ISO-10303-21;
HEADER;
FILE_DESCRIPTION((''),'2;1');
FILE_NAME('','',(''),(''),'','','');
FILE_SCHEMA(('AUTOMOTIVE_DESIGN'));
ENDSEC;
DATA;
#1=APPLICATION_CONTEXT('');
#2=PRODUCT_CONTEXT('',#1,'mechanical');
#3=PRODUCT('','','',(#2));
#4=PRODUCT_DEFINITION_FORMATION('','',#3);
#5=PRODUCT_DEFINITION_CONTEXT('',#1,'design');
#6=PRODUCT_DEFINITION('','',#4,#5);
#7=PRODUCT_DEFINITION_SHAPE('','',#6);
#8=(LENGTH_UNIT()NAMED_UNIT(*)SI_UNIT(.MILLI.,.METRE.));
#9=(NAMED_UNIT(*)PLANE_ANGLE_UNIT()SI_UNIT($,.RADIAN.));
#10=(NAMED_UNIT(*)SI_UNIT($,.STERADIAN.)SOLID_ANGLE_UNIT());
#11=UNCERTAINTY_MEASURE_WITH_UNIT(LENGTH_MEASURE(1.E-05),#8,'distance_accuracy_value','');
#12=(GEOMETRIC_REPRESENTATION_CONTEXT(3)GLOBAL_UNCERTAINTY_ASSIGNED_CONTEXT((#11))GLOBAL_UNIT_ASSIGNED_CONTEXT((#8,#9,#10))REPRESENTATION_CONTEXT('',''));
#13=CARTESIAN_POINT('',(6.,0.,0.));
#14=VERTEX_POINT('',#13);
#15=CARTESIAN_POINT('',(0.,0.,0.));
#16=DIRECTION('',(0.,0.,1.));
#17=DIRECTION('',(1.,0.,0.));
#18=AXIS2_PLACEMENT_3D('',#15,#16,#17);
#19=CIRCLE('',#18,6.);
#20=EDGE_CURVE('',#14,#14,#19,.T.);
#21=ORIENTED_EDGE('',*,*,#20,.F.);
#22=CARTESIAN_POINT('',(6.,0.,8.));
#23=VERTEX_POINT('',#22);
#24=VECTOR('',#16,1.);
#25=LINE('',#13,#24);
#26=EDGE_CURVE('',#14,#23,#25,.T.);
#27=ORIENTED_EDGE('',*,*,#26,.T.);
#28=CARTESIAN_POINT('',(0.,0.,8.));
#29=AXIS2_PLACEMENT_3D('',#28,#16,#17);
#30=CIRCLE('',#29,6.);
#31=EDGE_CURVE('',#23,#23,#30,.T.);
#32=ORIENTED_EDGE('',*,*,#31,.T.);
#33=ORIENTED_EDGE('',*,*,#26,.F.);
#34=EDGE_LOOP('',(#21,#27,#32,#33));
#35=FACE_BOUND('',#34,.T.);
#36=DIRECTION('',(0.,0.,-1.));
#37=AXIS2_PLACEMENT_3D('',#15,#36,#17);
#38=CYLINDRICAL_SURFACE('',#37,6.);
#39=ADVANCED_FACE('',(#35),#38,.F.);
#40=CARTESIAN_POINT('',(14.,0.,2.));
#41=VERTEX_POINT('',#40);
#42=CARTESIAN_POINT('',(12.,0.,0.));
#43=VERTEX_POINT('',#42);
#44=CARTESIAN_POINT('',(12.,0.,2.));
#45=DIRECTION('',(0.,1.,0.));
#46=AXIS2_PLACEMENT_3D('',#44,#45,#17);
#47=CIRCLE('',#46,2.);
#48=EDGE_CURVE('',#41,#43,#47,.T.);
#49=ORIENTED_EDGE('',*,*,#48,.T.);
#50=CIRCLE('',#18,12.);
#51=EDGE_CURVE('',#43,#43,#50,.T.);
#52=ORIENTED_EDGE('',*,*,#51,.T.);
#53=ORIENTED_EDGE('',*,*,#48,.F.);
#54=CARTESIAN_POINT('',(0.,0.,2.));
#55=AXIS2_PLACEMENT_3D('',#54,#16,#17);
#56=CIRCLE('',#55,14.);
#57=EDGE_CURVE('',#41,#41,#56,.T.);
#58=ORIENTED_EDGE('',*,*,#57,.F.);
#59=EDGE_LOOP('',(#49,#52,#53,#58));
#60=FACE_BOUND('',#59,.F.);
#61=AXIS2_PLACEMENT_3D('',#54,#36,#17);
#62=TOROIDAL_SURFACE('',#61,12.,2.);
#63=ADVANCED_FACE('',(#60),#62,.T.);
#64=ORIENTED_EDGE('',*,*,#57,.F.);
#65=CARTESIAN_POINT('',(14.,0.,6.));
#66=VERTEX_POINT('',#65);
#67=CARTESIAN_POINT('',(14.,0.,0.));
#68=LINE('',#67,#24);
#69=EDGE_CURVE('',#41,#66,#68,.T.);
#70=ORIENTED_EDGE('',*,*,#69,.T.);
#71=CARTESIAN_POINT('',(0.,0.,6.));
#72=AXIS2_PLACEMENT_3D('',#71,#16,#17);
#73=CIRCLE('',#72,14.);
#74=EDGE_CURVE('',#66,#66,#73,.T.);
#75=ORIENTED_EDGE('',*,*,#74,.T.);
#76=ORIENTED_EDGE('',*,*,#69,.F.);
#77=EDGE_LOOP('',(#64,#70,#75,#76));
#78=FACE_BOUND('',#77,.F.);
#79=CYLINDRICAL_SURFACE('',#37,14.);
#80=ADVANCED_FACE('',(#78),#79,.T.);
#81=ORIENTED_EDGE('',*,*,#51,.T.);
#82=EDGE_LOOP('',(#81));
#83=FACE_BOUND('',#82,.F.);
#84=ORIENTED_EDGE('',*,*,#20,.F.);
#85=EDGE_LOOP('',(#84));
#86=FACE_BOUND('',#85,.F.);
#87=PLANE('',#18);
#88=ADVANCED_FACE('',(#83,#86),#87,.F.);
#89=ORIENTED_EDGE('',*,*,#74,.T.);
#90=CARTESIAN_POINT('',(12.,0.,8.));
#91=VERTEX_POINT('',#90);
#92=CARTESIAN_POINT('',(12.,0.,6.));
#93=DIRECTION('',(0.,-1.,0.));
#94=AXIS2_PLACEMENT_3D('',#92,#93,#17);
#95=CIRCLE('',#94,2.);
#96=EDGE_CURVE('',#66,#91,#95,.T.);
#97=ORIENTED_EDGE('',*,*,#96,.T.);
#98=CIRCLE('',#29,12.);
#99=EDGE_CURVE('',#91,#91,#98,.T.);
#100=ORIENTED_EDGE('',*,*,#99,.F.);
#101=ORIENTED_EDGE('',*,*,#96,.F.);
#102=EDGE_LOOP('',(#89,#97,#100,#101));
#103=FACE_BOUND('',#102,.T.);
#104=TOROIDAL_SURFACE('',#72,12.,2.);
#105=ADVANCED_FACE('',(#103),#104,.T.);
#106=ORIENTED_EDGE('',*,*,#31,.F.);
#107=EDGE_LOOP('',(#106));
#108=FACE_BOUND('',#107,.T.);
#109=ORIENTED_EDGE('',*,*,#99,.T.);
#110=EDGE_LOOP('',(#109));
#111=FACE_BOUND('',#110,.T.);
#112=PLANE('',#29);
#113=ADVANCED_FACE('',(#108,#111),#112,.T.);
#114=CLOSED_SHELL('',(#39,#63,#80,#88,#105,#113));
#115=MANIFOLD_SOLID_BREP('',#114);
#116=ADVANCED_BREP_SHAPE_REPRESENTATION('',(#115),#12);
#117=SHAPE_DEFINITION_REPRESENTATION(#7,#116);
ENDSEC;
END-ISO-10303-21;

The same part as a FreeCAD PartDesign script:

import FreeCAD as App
import Part
import Sketcher

V = App.Vector
Q = App.Units.Quantity


def edges_at(feature, points):
    """Names of the edges that pass closest to the given points."""
    edges = feature.Shape.Edges
    near = lambda p: min(range(len(edges)), key=lambda i: edges[i].distToShape(Part.Vertex(*p))[0])
    return sorted({f"Edge{near(p) + 1}" for p in points})

doc = App.newDocument("Part")
body = doc.addObject("PartDesign::Body", "Body")

# Sketch on XY plane
sketch1 = body.newObject("Sketcher::SketchObject", "Sketch")
sketch1.AttachmentSupport = (doc.getObject("XY_Plane"), [""])
sketch1.MapMode = "FlatFace"
sketch1.addGeometry([
    Part.Circle(V(0, 0, 0), V(0, 0, 1), 14),
    Part.Circle(V(0, 0, 0), V(0, 0, 1), 6),
], False)
sketch1.addConstraint([
    Sketcher.Constraint("Coincident", 0, 3, -1, 1),
    Sketcher.Constraint("Coincident", 1, 3, -1, 1),
    Sketcher.Constraint("Diameter", 0, Q("28 mm")),
    Sketcher.Constraint("Diameter", 1, Q("12 mm")),
])
pad1 = body.newObject("PartDesign::Pad", "Pad")
pad1.Profile = sketch1
pad1.Length = 8
doc.recompute()

fillet = body.newObject("PartDesign::Fillet", "Fillet")
fillet.Base = (pad1, edges_at(pad1, [(-14, 0, 8), (-14, 0, 0)]))
fillet.Radius = 2

doc.recompute()
